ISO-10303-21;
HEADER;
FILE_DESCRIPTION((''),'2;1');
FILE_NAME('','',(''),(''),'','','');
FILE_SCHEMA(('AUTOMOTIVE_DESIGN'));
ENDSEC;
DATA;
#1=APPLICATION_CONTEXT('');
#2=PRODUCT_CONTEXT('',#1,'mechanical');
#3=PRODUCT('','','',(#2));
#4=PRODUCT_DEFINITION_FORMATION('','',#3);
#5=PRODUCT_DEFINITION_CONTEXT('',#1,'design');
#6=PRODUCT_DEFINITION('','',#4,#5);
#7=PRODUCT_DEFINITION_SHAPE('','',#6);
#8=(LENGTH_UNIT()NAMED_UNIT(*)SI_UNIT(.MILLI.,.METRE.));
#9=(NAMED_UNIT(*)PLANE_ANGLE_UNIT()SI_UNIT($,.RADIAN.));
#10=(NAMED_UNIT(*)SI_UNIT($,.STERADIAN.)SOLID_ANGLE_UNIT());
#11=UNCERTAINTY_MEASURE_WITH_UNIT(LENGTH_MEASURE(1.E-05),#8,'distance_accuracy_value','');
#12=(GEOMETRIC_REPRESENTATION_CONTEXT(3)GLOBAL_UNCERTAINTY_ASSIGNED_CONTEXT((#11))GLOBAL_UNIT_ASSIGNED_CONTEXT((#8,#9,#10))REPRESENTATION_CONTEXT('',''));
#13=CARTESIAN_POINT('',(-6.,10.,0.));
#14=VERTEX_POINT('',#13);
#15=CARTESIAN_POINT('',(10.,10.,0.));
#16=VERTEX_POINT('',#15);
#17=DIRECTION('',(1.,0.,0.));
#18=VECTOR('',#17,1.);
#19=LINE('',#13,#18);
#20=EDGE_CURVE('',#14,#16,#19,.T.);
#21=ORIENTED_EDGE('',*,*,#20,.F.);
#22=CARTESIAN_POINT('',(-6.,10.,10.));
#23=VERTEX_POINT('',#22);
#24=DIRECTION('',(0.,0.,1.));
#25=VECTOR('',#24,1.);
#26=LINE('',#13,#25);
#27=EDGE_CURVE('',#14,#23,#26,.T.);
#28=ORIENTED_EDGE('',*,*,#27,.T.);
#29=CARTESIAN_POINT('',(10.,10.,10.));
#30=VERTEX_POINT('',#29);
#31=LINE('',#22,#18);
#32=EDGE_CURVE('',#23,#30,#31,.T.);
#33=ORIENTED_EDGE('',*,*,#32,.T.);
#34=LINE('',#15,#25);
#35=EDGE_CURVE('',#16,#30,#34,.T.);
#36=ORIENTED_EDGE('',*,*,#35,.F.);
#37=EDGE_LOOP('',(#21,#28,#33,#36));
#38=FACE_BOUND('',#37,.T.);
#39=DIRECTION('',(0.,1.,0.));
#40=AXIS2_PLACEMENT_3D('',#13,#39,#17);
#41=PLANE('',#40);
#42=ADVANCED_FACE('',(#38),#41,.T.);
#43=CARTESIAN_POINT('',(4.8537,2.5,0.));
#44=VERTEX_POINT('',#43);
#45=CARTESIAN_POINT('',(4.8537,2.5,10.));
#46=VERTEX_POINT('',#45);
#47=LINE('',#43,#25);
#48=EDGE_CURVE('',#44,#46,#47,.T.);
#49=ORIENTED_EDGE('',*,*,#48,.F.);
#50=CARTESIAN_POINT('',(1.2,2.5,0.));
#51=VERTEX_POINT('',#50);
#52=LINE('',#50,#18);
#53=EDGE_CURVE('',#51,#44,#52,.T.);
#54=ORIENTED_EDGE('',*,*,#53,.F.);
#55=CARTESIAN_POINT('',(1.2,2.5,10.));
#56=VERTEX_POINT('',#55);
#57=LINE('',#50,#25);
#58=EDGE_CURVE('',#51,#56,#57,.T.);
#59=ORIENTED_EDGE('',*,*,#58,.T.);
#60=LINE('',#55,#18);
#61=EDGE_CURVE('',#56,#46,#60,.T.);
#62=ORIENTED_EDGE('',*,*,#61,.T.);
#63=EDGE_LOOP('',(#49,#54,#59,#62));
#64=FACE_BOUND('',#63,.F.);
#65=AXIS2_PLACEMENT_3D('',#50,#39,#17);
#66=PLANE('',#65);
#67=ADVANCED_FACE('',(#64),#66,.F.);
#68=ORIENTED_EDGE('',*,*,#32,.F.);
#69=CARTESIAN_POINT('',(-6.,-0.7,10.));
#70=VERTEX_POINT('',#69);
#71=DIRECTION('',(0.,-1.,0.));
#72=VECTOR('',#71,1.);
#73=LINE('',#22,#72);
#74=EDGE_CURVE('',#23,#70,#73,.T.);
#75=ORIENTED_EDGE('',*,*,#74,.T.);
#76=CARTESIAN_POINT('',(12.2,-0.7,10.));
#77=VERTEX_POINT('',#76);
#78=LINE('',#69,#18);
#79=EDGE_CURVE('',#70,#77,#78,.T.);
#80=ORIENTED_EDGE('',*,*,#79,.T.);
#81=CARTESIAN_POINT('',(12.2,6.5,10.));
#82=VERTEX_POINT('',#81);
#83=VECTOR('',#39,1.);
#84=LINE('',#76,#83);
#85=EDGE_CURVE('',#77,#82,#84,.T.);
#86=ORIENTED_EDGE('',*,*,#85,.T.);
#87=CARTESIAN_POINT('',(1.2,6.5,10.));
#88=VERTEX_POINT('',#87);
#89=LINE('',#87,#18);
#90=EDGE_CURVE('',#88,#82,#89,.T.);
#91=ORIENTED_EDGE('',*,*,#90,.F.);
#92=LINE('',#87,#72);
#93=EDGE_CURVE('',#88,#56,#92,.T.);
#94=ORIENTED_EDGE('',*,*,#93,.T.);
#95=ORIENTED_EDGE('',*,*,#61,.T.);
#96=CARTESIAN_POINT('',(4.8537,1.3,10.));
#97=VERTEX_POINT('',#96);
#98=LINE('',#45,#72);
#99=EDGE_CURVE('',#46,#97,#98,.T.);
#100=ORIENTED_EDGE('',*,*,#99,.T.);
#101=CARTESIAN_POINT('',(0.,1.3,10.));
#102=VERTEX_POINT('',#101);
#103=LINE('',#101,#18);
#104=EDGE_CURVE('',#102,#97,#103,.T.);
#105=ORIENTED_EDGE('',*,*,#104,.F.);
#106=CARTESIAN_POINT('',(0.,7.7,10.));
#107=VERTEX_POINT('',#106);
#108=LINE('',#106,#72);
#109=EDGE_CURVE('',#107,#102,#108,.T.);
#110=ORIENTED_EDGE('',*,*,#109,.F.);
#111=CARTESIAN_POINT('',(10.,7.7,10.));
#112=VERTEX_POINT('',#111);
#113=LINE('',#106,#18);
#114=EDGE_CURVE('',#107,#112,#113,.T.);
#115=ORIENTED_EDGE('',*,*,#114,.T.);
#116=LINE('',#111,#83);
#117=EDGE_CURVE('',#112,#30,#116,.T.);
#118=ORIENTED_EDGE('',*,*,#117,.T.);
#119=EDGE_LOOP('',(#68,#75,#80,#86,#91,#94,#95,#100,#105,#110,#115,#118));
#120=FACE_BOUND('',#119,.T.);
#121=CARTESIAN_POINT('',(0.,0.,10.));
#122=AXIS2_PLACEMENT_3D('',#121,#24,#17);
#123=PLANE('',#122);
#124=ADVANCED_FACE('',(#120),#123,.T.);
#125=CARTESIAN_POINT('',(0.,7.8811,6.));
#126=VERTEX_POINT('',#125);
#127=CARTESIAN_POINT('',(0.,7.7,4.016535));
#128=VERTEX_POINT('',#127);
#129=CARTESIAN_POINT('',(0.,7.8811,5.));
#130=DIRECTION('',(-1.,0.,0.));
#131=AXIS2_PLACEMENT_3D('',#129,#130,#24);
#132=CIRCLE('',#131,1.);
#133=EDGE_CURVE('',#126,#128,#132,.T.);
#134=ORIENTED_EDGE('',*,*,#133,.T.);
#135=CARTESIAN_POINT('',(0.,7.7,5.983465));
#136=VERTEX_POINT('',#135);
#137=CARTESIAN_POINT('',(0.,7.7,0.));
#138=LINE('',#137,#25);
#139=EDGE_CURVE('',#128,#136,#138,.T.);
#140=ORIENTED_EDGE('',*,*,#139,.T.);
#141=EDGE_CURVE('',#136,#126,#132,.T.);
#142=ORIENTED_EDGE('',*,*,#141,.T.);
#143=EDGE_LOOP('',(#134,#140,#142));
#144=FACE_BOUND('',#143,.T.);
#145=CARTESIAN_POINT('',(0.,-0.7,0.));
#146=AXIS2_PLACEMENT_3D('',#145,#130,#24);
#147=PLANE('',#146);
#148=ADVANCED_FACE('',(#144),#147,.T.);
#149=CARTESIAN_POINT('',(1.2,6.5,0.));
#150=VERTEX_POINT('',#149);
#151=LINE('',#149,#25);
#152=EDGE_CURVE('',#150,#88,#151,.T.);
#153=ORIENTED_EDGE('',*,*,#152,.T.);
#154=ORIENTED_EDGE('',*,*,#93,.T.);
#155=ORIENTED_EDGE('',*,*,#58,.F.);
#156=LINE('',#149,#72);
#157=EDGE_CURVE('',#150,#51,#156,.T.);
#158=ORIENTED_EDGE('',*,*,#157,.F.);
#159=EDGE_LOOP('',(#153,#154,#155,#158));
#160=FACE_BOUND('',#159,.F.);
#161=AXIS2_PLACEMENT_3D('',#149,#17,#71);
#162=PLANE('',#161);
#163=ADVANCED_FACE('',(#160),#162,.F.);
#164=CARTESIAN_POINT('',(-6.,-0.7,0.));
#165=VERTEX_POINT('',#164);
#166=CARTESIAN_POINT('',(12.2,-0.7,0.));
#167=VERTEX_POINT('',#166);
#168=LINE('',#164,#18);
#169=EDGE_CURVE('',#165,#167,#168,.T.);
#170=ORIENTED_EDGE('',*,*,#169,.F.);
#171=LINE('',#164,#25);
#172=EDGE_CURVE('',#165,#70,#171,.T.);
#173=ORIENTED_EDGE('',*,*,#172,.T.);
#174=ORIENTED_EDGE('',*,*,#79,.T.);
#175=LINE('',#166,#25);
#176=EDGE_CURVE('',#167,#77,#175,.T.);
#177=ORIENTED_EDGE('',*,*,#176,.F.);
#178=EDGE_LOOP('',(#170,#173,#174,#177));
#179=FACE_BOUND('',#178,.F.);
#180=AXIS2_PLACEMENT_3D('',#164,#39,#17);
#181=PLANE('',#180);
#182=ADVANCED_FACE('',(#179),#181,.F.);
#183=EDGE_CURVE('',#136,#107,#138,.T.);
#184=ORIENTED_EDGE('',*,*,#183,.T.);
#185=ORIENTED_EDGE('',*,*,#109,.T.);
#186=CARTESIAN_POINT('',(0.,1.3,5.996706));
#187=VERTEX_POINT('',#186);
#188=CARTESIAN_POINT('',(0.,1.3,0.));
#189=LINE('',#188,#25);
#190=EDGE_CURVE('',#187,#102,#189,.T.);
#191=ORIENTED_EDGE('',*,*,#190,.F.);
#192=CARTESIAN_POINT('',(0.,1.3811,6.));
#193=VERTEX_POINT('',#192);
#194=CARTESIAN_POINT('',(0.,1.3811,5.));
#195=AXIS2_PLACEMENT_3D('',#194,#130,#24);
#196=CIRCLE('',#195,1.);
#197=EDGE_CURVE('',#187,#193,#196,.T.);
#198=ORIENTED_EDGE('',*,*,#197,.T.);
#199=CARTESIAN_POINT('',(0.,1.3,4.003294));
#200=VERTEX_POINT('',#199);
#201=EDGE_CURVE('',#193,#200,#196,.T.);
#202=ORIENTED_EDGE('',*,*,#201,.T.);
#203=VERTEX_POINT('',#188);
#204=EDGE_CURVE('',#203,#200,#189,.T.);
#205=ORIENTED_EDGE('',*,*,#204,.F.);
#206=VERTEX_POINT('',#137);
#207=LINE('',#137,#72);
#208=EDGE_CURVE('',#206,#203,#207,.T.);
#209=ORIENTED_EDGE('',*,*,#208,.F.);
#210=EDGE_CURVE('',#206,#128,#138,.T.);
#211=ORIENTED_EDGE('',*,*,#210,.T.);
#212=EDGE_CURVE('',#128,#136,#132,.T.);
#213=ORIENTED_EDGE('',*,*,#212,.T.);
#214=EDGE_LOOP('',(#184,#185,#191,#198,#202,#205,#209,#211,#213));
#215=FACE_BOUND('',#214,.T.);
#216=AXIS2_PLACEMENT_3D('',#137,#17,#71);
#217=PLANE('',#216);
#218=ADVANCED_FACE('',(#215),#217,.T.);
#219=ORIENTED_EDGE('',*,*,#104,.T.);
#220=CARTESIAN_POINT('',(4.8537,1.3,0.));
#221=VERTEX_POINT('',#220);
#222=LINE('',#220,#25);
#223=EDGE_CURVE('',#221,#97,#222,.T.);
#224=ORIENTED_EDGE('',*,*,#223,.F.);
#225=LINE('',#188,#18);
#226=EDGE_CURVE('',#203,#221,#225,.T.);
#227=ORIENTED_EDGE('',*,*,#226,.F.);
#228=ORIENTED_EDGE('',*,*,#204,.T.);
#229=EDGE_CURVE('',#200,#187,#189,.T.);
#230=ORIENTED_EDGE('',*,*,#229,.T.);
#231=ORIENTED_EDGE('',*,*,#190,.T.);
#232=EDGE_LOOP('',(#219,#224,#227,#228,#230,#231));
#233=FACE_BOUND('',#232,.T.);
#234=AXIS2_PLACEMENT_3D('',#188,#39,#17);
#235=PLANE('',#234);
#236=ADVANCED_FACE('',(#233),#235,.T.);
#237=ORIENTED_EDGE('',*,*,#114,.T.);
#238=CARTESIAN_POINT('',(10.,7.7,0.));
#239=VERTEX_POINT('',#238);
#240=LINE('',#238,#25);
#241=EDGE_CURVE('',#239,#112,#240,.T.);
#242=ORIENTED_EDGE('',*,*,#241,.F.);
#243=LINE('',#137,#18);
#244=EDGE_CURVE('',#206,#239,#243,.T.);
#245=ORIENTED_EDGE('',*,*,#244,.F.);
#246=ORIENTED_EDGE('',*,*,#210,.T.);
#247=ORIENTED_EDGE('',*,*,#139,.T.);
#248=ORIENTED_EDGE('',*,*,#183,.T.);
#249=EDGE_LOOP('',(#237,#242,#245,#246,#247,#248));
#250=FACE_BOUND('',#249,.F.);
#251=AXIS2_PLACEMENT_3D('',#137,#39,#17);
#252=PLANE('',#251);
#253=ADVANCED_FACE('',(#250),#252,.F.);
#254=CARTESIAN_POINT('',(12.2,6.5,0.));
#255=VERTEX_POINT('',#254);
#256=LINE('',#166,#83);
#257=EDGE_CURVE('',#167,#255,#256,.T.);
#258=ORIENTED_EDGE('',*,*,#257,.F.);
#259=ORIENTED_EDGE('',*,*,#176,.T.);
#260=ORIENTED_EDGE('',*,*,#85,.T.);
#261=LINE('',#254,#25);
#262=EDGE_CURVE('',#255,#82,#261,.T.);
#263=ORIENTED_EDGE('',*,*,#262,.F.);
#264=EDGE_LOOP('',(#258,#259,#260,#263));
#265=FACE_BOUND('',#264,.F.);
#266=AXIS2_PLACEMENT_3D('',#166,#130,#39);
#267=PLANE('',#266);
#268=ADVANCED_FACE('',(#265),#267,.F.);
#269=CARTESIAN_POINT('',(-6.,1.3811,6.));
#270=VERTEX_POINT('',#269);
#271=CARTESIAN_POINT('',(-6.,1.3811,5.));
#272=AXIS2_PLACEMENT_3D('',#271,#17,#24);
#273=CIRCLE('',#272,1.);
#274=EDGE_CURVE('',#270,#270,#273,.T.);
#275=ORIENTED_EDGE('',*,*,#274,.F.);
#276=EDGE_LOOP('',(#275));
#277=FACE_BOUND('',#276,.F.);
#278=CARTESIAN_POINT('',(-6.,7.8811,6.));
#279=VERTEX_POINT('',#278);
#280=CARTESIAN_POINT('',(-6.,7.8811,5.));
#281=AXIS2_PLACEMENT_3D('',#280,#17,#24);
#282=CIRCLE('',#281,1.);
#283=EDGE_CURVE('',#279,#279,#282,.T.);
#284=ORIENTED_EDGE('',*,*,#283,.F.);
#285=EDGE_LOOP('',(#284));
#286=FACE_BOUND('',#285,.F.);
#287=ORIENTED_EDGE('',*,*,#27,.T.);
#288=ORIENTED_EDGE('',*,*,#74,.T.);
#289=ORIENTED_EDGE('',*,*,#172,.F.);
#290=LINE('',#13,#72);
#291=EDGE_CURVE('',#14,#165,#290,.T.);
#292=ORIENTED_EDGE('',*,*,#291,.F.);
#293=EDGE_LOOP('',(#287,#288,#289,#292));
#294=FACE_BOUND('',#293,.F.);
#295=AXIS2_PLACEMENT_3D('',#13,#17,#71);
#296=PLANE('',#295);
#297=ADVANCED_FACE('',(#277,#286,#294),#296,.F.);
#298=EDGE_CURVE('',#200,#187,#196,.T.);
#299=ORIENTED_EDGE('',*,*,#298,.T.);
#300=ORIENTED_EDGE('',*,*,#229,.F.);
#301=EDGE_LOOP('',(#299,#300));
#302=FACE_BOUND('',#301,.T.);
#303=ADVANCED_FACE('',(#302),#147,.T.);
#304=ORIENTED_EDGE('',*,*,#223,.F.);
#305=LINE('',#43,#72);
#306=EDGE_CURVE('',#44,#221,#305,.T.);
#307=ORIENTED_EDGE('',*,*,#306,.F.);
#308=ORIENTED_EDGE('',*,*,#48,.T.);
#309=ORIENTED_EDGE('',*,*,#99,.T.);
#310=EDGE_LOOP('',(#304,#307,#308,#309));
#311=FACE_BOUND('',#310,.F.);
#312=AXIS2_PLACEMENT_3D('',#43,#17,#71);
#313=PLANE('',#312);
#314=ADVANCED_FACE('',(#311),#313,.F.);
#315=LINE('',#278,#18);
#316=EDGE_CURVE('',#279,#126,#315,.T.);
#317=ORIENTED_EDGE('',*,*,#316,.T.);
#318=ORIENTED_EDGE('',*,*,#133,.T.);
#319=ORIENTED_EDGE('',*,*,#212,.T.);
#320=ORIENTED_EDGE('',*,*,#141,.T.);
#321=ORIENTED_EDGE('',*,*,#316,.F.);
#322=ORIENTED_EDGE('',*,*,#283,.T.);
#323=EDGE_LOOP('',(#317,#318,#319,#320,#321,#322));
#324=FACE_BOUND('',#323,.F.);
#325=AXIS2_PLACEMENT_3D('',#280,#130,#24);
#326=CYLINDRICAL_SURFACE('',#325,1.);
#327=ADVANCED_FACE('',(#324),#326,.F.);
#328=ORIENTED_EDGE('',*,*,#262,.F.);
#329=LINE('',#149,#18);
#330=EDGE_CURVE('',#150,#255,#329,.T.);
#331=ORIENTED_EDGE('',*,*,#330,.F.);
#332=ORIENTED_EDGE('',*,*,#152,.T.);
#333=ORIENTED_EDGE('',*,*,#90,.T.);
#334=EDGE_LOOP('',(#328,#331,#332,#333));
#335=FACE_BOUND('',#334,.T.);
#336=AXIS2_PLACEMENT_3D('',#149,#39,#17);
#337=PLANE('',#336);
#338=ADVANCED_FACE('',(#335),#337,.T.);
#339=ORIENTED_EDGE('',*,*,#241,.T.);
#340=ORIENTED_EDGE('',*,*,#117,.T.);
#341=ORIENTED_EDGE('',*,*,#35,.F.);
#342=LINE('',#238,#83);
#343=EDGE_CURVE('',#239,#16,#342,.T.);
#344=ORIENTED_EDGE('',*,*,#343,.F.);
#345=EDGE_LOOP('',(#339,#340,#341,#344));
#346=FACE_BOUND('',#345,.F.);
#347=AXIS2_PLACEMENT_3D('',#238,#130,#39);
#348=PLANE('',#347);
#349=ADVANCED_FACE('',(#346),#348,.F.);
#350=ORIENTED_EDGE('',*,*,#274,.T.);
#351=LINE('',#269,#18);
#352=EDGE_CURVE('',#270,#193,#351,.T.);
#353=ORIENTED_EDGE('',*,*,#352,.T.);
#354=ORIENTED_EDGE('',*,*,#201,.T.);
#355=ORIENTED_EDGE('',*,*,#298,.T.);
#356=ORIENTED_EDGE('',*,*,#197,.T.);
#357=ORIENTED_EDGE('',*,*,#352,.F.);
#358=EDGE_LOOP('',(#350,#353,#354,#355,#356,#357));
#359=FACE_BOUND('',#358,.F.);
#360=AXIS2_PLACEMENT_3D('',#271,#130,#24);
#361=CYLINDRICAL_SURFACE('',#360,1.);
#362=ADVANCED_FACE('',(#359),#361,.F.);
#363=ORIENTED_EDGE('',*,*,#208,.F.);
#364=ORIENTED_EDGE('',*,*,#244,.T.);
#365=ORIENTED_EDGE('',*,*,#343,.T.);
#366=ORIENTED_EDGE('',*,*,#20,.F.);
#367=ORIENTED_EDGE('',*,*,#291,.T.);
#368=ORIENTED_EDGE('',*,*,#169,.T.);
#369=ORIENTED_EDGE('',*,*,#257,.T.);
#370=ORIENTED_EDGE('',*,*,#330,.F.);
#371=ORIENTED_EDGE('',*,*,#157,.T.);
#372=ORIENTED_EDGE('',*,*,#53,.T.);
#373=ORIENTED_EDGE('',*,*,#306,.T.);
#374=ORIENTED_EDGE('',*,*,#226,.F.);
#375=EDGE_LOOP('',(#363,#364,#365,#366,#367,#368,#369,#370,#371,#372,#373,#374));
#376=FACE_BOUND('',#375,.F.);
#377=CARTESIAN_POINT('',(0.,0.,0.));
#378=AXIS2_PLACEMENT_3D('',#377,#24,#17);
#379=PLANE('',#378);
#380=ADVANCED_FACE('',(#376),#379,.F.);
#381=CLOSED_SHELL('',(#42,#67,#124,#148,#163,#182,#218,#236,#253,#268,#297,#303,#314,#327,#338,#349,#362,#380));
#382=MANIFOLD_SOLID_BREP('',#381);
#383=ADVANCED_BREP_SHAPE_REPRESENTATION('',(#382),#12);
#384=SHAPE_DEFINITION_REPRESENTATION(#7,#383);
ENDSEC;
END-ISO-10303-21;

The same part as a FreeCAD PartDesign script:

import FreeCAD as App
import Part
import Sketcher

doc = App.newDocument("Part")
params = doc.addObject("Spreadsheet::Sheet", "Params")
for row, (alias, value) in enumerate([
    ("sketch1_width", "11 mm"),
    ("sketch1_height", "4 mm"),
    ("sketch1_height2", "1.2 mm"),
    ("sketch1_width2", "10 mm"),
    ("sketch1_height3", "2.3 mm"),
    ("pad1_length", "10 mm"),
    ("sketch2_diameter", "2 mm"),
    ("pocket1_length", "6 mm"),
], start=1):
    params.set(f"A{row}", alias)
    params.set(f"B{row}", "=" + value)
    params.setAlias(f"B{row}", alias)

body = doc.addObject("PartDesign::Body", "Body")

# Sketch on XY plane
sketch1 = body.newObject("Sketcher::SketchObject", "Sketch")
sketch1.AttachmentSupport = (doc.getObject("XY_Plane"), [""])
sketch1.MapMode = "FlatFace"
sketch1.addGeometry([
    Part.LineSegment(App.Vector(0, 1.3, 0), App.Vector(0, 7.7, 0)),  # 0
    Part.LineSegment(App.Vector(0, 7.7, 0), App.Vector(10, 7.7, 0)),  # 1
    Part.LineSegment(App.Vector(10, 7.7, 0), App.Vector(10, 10, 0)),  # 2
    Part.LineSegment(App.Vector(10, 10, 0), App.Vector(-6, 10, 0)),  # 3
    Part.LineSegment(App.Vector(-6, 10, 0), App.Vector(-6, -0.7, 0)),  # 4
    Part.LineSegment(App.Vector(-6, -0.7, 0), App.Vector(12.2, -0.7, 0)),  # 5
    Part.LineSegment(App.Vector(12.2, -0.7, 0), App.Vector(12.2, 6.5, 0)),  # 6
    Part.LineSegment(App.Vector(12.2, 6.5, 0), App.Vector(1.2, 6.5, 0)),  # 7
    Part.LineSegment(App.Vector(1.2, 6.5, 0), App.Vector(1.2, 2.5, 0)),  # 8
    Part.LineSegment(App.Vector(1.2, 2.5, 0), App.Vector(4.9, 2.5, 0)),  # 9
    Part.LineSegment(App.Vector(4.9, 2.5, 0), App.Vector(4.9, 1.3, 0)),  # 10
    Part.LineSegment(App.Vector(4.9, 1.3, 0), App.Vector(0, 1.3, 0)),  # 11
], False)
sketch1.addConstraint([
    Sketcher.Constraint("Coincident", 0, 2, 1, 1),
    Sketcher.Constraint("Coincident", 1, 2, 2, 1),
    Sketcher.Constraint("Coincident", 2, 2, 3, 1),
    Sketcher.Constraint("Coincident", 3, 2, 4, 1),
    Sketcher.Constraint("Coincident", 4, 2, 5, 1),
    Sketcher.Constraint("Coincident", 5, 2, 6, 1),
    Sketcher.Constraint("Coincident", 6, 2, 7, 1),
    Sketcher.Constraint("Coincident", 7, 2, 8, 1),
    Sketcher.Constraint("Coincident", 8, 2, 9, 1),
    Sketcher.Constraint("Coincident", 9, 2, 10, 1),
    Sketcher.Constraint("Coincident", 10, 2, 11, 1),
    Sketcher.Constraint("Coincident", 11, 2, 0, 1),
    Sketcher.Constraint("Vertical", 0),
    Sketcher.Constraint("Horizontal", 1),
    Sketcher.Constraint("Vertical", 2),
    Sketcher.Constraint("Horizontal", 3),
    Sketcher.Constraint("Vertical", 4),
    Sketcher.Constraint("Horizontal", 5),
    Sketcher.Constraint("Vertical", 6),
    Sketcher.Constraint("Horizontal", 7),
    Sketcher.Constraint("Vertical", 8),
    Sketcher.Constraint("Horizontal", 9),
    Sketcher.Constraint("Vertical", 10),
    Sketcher.Constraint("Horizontal", 11),
    Sketcher.Constraint("PointOnObject", 0, 2, -2),
    Sketcher.Constraint("DistanceX", 7, 2, 7, 1, 11.0),
    Sketcher.Constraint("DistanceY", 8, 2, 8, 1, 4.0),
    Sketcher.Constraint("DistanceY", 10, 2, 10, 1, 1.2),
    Sketcher.Constraint("DistanceX", 3, 2, -1, 1, 6.0),
    Sketcher.Constraint("DistanceX", -1, 1, 7, 2, 1.2),
    Sketcher.Constraint("DistanceY", 6, 2, 1, 2, 1.2),
    Sketcher.Constraint("DistanceX", 1, 1, 1, 2, 10.0),
    Sketcher.Constraint("DistanceY", 2, 1, 2, 2, 2.3),
    Sketcher.Constraint("DistanceY", 4, 2, 4, 1, 10.7),
    Sketcher.Constraint("DistanceY", -1, 1, 2, 2, 10.0),
    Sketcher.Constraint("DistanceX", 9, 1, 9, 2, 3.6537),
])
sketch1.setExpression("Constraints[25]", "Params.sketch1_width")
sketch1.setExpression("Constraints[26]", "Params.sketch1_height")
sketch1.setExpression("Constraints[27]", "Params.sketch1_height2")
sketch1.setExpression("Constraints[31]", "Params.sketch1_width2")
sketch1.setExpression("Constraints[32]", "Params.sketch1_height3")
pad1 = body.newObject("PartDesign::Pad", "Pad")
pad1.Profile = sketch1
pad1.setExpression("Length", "Params.pad1_length")

# Sketch on YZ plane
sketch2 = body.newObject("Sketcher::SketchObject", "Sketch001")
sketch2.AttachmentSupport = (doc.getObject("YZ_Plane"), [""])
sketch2.MapMode = "FlatFace"
sketch2.AttachmentOffset = App.Placement(App.Vector(0, 0, -6), App.Rotation())
sketch2.addGeometry([
    Part.Circle(App.Vector(7.9, 5, 0), App.Vector(0, 0, 1), 1),
    Part.Circle(App.Vector(1.4, 5, 0), App.Vector(0, 0, 1), 1),
], False)
sketch2.addConstraint([
    Sketcher.Constraint("Equal", 0, 1),
    Sketcher.Constraint("Horizontal", 0, 3, 1, 3),
    Sketcher.Constraint("Diameter", 0, 2.0),
    Sketcher.Constraint("DistanceX", 1, 3, 0, 3, 6.5),
    Sketcher.Constraint("DistanceY", -1, 1, 0, 3, 5.0),
    Sketcher.Constraint("DistanceX", -1, 1, 0, 3, 7.881),
])
sketch2.setExpression("Constraints[2]", "Params.sketch2_diameter")
pocket1 = body.newObject("PartDesign::Pocket", "Pocket")
pocket1.Profile = sketch2
pocket1.setExpression("Length", "Params.pocket1_length")
pocket1.Reversed = True

doc.recompute()
